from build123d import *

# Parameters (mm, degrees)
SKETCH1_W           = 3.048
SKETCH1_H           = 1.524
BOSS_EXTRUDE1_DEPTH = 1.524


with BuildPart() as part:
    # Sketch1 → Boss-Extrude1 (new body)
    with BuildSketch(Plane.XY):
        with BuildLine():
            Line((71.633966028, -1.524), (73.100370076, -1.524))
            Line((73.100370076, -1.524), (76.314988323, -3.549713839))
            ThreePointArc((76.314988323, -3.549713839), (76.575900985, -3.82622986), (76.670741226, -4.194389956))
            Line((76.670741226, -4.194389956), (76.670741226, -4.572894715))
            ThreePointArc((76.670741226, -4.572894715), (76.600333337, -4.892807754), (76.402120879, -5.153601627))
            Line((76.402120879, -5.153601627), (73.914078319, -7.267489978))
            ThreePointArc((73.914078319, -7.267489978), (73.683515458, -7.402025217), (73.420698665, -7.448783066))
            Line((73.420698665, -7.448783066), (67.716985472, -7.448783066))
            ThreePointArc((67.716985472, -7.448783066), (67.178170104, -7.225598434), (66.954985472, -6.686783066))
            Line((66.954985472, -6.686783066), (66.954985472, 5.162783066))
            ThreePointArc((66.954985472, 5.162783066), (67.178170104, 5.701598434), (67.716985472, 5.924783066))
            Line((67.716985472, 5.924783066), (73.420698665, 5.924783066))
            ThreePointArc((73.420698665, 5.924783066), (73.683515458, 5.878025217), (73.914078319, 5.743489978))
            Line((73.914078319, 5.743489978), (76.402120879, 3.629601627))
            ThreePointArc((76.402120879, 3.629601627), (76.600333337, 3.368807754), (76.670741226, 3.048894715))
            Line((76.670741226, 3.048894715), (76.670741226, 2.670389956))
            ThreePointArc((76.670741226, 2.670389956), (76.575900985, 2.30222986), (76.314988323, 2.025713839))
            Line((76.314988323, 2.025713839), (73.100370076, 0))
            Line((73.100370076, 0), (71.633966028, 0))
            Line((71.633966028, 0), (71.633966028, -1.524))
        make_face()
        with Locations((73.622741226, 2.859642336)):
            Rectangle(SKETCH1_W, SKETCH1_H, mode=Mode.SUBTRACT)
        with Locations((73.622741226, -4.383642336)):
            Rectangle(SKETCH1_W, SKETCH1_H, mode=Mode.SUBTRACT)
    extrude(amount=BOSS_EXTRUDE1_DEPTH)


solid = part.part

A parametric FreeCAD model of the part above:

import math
import FreeCAD as App
import Part
import Sketcher
from FreeCAD import Vector
Q = App.Units.Quantity

doc = App.newDocument("Part")
params = doc.addObject("Spreadsheet::Sheet", "Params")
for row, (alias, value) in enumerate([
    ("sketch1_radius", "0.03 in"),
    ("sketch1_width", "0.12 in"),
    ("sketch1_height", "0.06 in"),
    ("pad1_length", "0.06 in"),
], start=1):
    params.set(f"A{row}", alias)
    params.set(f"B{row}", "=" + value)
    params.setAlias(f"B{row}", alias)

body = doc.addObject("PartDesign::Body", "Body")

# Sketch on XY plane
sketch1 = body.newObject("Sketcher::SketchObject", "Sketch")
sketch1.AttachmentSupport = (doc.getObject("XY_Plane"), [""])
sketch1.MapMode = "FlatFace"
sketch1.addGeometry([
    Part.LineSegment(Vector(73.1, -1.52, 0), Vector(71.63, -1.52, 0)),  # 0
    Part.LineSegment(Vector(71.63, -1.52, 0), Vector(71.63, 0, 0)),  # 1
    Part.LineSegment(Vector(71.63, 0, 0), Vector(73.1, 0, 0)),  # 2
    Part.LineSegment(Vector(73.1, 0, 0), Vector(76.31, 2.03, 0)),  # 3
    Part.ArcOfCircle(Part.Circle(Vector(75.91, 2.67, 0), Vector(0, 0, 1), 0.76), math.radians(-58), math.radians(0)),  # 4
    Part.LineSegment(Vector(76.67, 2.67, 0), Vector(76.67, 3.05, 0)),  # 5
    Part.ArcOfCircle(Part.Circle(Vector(75.91, 3.05, 0), Vector(0, 0, 1), 0.76), math.radians(0), math.radians(50)),  # 6
    Part.LineSegment(Vector(76.4, 3.63, 0), Vector(73.91, 5.74, 0)),  # 7
    Part.ArcOfCircle(Part.Circle(Vector(73.42, 5.16, 0), Vector(0, 0, 1), 0.76), math.radians(50), math.radians(90)),  # 8
    Part.LineSegment(Vector(73.42, 5.92, 0), Vector(67.72, 5.92, 0)),  # 9
    Part.ArcOfCircle(Part.Circle(Vector(67.72, 5.16, 0), Vector(0, 0, 1), 0.76), math.radians(90), math.radians(180)),  # 10
    Part.LineSegment(Vector(66.95, 5.16, 0), Vector(66.95, -6.69, 0)),  # 11
    Part.ArcOfCircle(Part.Circle(Vector(67.72, -6.69, 0), Vector(0, 0, 1), 0.76), math.radians(180), math.radians(270)),  # 12
    Part.LineSegment(Vector(67.72, -7.45, 0), Vector(73.42, -7.45, 0)),  # 13
    Part.ArcOfCircle(Part.Circle(Vector(73.42, -6.69, 0), Vector(0, 0, 1), 0.76), math.radians(-90), math.radians(-50)),  # 14
    Part.LineSegment(Vector(73.91, -7.27, 0), Vector(76.4, -5.15, 0)),  # 15
    Part.ArcOfCircle(Part.Circle(Vector(75.91, -4.57, 0), Vector(0, 0, 1), 0.76), math.radians(-50), math.radians(0)),  # 16
    Part.LineSegment(Vector(76.67, -4.57, 0), Vector(76.67, -4.19, 0)),  # 17
    Part.ArcOfCircle(Part.Circle(Vector(75.91, -4.19, 0), Vector(0, 0, 1), 0.76), math.radians(0), math.radians(58)),  # 18
    Part.LineSegment(Vector(76.31, -3.55, 0), Vector(73.1, -1.52, 0)),  # 19
    Part.LineSegment(Vector(72.1, -5.15, 0), Vector(72.1, -3.62, 0)),  # 20
    Part.LineSegment(Vector(72.1, -3.62, 0), Vector(75.15, -3.62, 0)),  # 21
    Part.LineSegment(Vector(75.15, -3.62, 0), Vector(75.15, -5.15, 0)),  # 22
    Part.LineSegment(Vector(75.15, -5.15, 0), Vector(72.1, -5.15, 0)),  # 23
    Part.LineSegment(Vector(72.1, 2.1, 0), Vector(72.1, 3.62, 0)),  # 24
    Part.LineSegment(Vector(72.1, 3.62, 0), Vector(75.15, 3.62, 0)),  # 25
    Part.LineSegment(Vector(75.15, 3.62, 0), Vector(75.15, 2.1, 0)),  # 26
    Part.LineSegment(Vector(75.15, 2.1, 0), Vector(72.1, 2.1, 0)),  # 27
], False)
sketch1.addConstraint([
    Sketcher.Constraint("Coincident", 0, 2, 1, 1),
    Sketcher.Constraint("Coincident", 1, 2, 2, 1),
    Sketcher.Constraint("Coincident", 2, 2, 3, 1),
    Sketcher.Constraint("Tangent", 3, 2, 4, 1),
    Sketcher.Constraint("Tangent", 4, 2, 5, 1),
    Sketcher.Constraint("Tangent", 5, 2, 6, 1),
    Sketcher.Constraint("Tangent", 6, 2, 7, 1),
    Sketcher.Constraint("Tangent", 7, 2, 8, 1),
    Sketcher.Constraint("Tangent", 8, 2, 9, 1),
    Sketcher.Constraint("Tangent", 9, 2, 10, 1),
    Sketcher.Constraint("Tangent", 10, 2, 11, 1),
    Sketcher.Constraint("Tangent", 11, 2, 12, 1),
    Sketcher.Constraint("Tangent", 12, 2, 13, 1),
    Sketcher.Constraint("Tangent", 13, 2, 14, 1),
    Sketcher.Constraint("Tangent", 14, 2, 15, 1),
    Sketcher.Constraint("Tangent", 15, 2, 16, 1),
    Sketcher.Constraint("Tangent", 16, 2, 17, 1),
    Sketcher.Constraint("Tangent", 17, 2, 18, 1),
    Sketcher.Constraint("Tangent", 18, 2, 19, 1),
    Sketcher.Constraint("Coincident", 19, 2, 0, 1),
    Sketcher.Constraint("Coincident", 20, 2, 21, 1),
    Sketcher.Constraint("Coincident", 21, 2, 22, 1),
    Sketcher.Constraint("Coincident", 22, 2, 23, 1),
    Sketcher.Constraint("Coincident", 23, 2, 20, 1),
    Sketcher.Constraint("Coincident", 24, 2, 25, 1),
    Sketcher.Constraint("Coincident", 25, 2, 26, 1),
    Sketcher.Constraint("Coincident", 26, 2, 27, 1),
    Sketcher.Constraint("Coincident", 27, 2, 24, 1),
    Sketcher.Constraint("Horizontal", 0),
    Sketcher.Constraint("Vertical", 1),
    Sketcher.Constraint("Horizontal", 2),
    Sketcher.Constraint("Vertical", 5),
    Sketcher.Constraint("Horizontal", 9),
    Sketcher.Constraint("Vertical", 11),
    Sketcher.Constraint("Horizontal", 13),
    Sketcher.Constraint("Vertical", 17),
    Sketcher.Constraint("Vertical", 20),
    Sketcher.Constraint("Horizontal", 21),
    Sketcher.Constraint("Vertical", 22),
    Sketcher.Constraint("Horizontal", 23),
    Sketcher.Constraint("Vertical", 24),
    Sketcher.Constraint("Horizontal", 25),
    Sketcher.Constraint("Vertical", 26),
    Sketcher.Constraint("Horizontal", 27),
    Sketcher.Constraint("Equal", 4, 6),
    Sketcher.Constraint("Equal", 6, 8),
    Sketcher.Constraint("Equal", 8, 10),
    Sketcher.Constraint("Equal", 10, 12),
    Sketcher.Constraint("Equal", 12, 14),
    Sketcher.Constraint("Equal", 14, 16),
    Sketcher.Constraint("Equal", 16, 18),
    Sketcher.Constraint("Symmetric", 20, 2, 24, 2, -1),
    Sketcher.Constraint("PointOnObject", 1, 2, -1),
    Sketcher.Constraint("Vertical", 8, 3, 14, 3),
    Sketcher.Constraint("Vertical", 6, 3, 16, 3),
    Sketcher.Constraint("Vertical", 7, 2, 14, 2),
    Sketcher.Constraint("Vertical", 3, 2, 18, 2),
    Sketcher.Constraint("Vertical", 2, 2, 19, 2),
    Sketcher.Constraint("Vertical", 22, 2, 25, 2),
    Sketcher.Constraint("Equal", 5, 17),
    Sketcher.Constraint("Equal", 1, 20),
    Sketcher.Constraint("Equal", 22, 24),
    Sketcher.Constraint("Radius", 4, Q("0.03 in")),
    Sketcher.Constraint("DistanceX", 21, 1, 21, 2, Q("0.12 in")),
    Sketcher.Constraint("DistanceY", 1, 1, 1, 2, Q("0.06 in")),
    Sketcher.Constraint("DistanceX", 21, 2, 18, 3, Q("0.03 in")),
    Sketcher.Constraint("DistanceX", -1, 1, 8, 3, 73.420699),
    Sketcher.Constraint("DistanceY", -1, 1, 6, 2, 3.629602),
    Sketcher.Constraint("DistanceY", 4, 3, 7, 2, 3.0731),
    Sketcher.Constraint("DistanceX", 0, 2, 0, 1, 1.466404),
    Sketcher.Constraint("DistanceX", 9, 2, 9, 1, 5.703713),
    Sketcher.Constraint("DistanceY", 5, 1, 5, 2, 0.378505),
    Sketcher.Constraint("DistanceY", 11, 2, 11, 1, 11.849566),
    Sketcher.Constraint("DistanceX", -1, 1, 2, 2, 73.10037),
    Sketcher.Constraint("DistanceY", 14, 3, 20, 2, 3.065141),
])
sketch1.setExpression("Constraints[62]", "Params.sketch1_radius")
sketch1.setExpression("Constraints[63]", "Params.sketch1_width")
sketch1.setExpression("Constraints[64]", "Params.sketch1_height")
pad1 = body.newObject("PartDesign::Pad", "Pad")
pad1.Profile = sketch1
pad1.setExpression("Length", "Params.pad1_length")

doc.recompute()
